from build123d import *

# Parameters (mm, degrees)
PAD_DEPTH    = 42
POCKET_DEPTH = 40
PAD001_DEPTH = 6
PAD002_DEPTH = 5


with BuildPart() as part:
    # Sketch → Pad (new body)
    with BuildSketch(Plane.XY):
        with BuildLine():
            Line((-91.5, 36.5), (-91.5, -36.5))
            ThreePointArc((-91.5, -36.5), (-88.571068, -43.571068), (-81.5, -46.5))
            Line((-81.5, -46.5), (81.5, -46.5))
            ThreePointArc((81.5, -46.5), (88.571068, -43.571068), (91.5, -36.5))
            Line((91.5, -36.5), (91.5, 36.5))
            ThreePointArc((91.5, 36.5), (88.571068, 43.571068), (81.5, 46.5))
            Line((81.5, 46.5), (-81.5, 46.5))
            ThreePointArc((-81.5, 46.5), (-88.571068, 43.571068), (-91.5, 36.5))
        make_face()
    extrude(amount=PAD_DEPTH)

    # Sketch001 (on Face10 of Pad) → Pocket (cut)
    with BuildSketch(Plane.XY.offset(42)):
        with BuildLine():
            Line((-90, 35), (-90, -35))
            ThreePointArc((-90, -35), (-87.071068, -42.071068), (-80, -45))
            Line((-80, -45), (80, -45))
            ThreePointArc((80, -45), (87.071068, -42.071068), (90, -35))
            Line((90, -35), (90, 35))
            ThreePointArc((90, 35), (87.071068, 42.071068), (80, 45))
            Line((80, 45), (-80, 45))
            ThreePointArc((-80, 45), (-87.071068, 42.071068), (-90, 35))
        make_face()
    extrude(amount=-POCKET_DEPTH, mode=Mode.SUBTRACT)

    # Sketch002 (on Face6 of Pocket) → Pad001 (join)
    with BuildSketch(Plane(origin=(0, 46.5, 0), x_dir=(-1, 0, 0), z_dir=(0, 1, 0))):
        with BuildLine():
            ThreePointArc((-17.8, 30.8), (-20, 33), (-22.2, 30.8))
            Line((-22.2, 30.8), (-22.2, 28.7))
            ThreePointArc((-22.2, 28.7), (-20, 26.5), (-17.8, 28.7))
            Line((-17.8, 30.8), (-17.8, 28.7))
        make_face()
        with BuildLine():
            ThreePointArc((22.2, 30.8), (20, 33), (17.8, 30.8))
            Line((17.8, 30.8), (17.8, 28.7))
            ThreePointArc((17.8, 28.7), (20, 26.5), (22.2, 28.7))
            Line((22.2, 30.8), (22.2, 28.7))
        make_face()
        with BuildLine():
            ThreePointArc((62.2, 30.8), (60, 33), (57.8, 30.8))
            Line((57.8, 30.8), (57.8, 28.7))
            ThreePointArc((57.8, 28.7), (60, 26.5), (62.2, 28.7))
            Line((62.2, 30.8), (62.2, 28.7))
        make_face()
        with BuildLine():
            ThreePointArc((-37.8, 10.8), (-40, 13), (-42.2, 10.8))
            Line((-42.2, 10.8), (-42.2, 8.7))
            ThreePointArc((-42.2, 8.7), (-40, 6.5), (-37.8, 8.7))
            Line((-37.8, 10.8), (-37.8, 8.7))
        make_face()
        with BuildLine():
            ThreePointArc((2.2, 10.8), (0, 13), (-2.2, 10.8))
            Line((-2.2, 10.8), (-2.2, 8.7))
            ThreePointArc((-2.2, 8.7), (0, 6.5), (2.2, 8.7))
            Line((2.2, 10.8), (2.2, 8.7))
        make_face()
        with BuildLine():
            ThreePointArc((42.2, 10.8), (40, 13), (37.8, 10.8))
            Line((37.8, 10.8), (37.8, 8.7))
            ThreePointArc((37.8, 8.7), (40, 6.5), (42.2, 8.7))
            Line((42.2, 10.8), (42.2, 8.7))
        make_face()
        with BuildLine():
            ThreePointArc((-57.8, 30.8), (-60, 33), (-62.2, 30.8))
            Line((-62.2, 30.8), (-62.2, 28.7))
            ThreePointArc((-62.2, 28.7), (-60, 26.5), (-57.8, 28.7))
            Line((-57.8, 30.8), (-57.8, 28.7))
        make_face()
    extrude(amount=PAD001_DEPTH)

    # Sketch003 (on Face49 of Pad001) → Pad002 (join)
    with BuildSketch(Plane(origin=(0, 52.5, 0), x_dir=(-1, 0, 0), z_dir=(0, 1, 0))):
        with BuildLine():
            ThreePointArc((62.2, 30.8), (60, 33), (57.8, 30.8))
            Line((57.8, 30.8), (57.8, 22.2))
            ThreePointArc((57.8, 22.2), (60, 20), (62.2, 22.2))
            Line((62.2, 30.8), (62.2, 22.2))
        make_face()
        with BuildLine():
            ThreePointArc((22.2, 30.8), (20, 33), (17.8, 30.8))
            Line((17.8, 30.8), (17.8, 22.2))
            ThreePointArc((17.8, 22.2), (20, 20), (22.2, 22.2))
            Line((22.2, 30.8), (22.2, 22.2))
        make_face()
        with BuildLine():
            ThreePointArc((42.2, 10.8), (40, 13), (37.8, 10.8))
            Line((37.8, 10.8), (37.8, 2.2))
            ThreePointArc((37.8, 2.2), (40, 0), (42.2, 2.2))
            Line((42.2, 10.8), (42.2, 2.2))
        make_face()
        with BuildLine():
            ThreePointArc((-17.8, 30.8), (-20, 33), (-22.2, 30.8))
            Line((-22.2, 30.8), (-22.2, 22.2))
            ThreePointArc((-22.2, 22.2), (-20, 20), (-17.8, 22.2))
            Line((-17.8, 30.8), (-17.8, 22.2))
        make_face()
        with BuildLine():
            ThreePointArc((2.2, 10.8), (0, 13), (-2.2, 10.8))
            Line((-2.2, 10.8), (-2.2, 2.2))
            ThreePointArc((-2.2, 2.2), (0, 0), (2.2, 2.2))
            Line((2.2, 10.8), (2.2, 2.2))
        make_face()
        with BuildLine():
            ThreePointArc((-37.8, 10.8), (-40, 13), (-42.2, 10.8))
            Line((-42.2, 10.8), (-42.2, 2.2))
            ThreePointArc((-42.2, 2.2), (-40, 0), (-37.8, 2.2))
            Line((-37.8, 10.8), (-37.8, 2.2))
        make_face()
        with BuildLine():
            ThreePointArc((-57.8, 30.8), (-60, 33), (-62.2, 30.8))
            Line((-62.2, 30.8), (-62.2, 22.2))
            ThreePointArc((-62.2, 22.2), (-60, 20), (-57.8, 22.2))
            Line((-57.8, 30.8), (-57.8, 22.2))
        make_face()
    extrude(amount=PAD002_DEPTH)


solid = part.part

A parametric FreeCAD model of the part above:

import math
import FreeCAD as App
import Part
import Sketcher

V = App.Vector

doc = App.newDocument("Part")
body = doc.addObject("PartDesign::Body", "Body")

sketch1 = doc.addObject("Sketcher::SketchObject", "Sketch")
body.addObject(sketch1)
sketch1.AttachmentSupport = (doc.XY_Plane, [""])
sketch1.MapMode = "FlatFace"
sketch1.addGeometry(Part.LineSegment(V(-92, 36, 0), V(-92, -36, 0)), False)
sketch1.addGeometry(Part.ArcOfCircle(Part.Circle(V(-82, -37, 0), V(0, 0, 1), 10), math.radians(180), math.radians(270)), False)
sketch1.addGeometry(Part.LineSegment(V(-82, -46, 0), V(82, -46, 0)), False)
sketch1.addGeometry(Part.ArcOfCircle(Part.Circle(V(82, -37, 0), V(0, 0, 1), 10), math.radians(-90), math.radians(0)), False)
sketch1.addGeometry(Part.LineSegment(V(92, -36, 0), V(92, 36, 0)), False)
sketch1.addGeometry(Part.ArcOfCircle(Part.Circle(V(82, 37, 0), V(0, 0, 1), 10), math.radians(0), math.radians(90)), False)
sketch1.addGeometry(Part.LineSegment(V(82, 46, 0), V(-82, 46, 0)), False)
sketch1.addGeometry(Part.ArcOfCircle(Part.Circle(V(-82, 37, 0), V(0, 0, 1), 10), math.radians(90), math.radians(180)), False)
sketch1.addConstraint(Sketcher.Constraint("Tangent", 0, 2, 1, 1))
sketch1.addConstraint(Sketcher.Constraint("Tangent", 1, 2, 2, 1))
sketch1.addConstraint(Sketcher.Constraint("Tangent", 2, 2, 3, 1))
sketch1.addConstraint(Sketcher.Constraint("Tangent", 3, 2, 4, 1))
sketch1.addConstraint(Sketcher.Constraint("Tangent", 4, 2, 5, 1))
sketch1.addConstraint(Sketcher.Constraint("Tangent", 5, 2, 6, 1))
sketch1.addConstraint(Sketcher.Constraint("Tangent", 6, 2, 7, 1))
sketch1.addConstraint(Sketcher.Constraint("Tangent", 7, 2, 0, 1))
sketch1.addConstraint(Sketcher.Constraint("Vertical", 0))
sketch1.addConstraint(Sketcher.Constraint("Horizontal", 2))
sketch1.addConstraint(Sketcher.Constraint("Vertical", 4))
sketch1.addConstraint(Sketcher.Constraint("Horizontal", 6))
sketch1.addConstraint(Sketcher.Constraint("Equal", 1, 3))
sketch1.addConstraint(Sketcher.Constraint("Equal", 3, 5))
sketch1.addConstraint(Sketcher.Constraint("Equal", 5, 7))
sketch1.addConstraint(Sketcher.Constraint("Symmetric", 1, 3, 5, 3, -1, 1))
sketch1.addConstraint(Sketcher.Constraint("Radius", 1, 9.999999))
sketch1.addConstraint(Sketcher.Constraint("DistanceX", 2, 1, 2, 2, 163.0))
sketch1.addConstraint(Sketcher.Constraint("DistanceY", 0, 2, 0, 1, 73.0))
pad1 = doc.addObject("PartDesign::Pad", "Pad")
body.addObject(pad1)
pad1.Profile = sketch1
pad1.Length = 42

sketch2 = doc.addObject("Sketcher::SketchObject", "Sketch001")
body.addObject(sketch2)
sketch2.AttachmentSupport = (doc.XY_Plane, [""])
sketch2.MapMode = "FlatFace"
sketch2.AttachmentOffset = App.Placement(V(0, 0, 42), App.Rotation())
sketch2.addGeometry(Part.LineSegment(V(-90, 35, 0), V(-90, -35, 0)), False)
sketch2.addGeometry(Part.ArcOfCircle(Part.Circle(V(-80, -35, 0), V(0, 0, 1), 10), math.radians(180), math.radians(270)), False)
sketch2.addGeometry(Part.LineSegment(V(-80, -45, 0), V(80, -45, 0)), False)
sketch2.addGeometry(Part.ArcOfCircle(Part.Circle(V(80, -35, 0), V(0, 0, 1), 10), math.radians(-90), math.radians(0)), False)
sketch2.addGeometry(Part.LineSegment(V(90, -35, 0), V(90, 35, 0)), False)
sketch2.addGeometry(Part.ArcOfCircle(Part.Circle(V(80, 35, 0), V(0, 0, 1), 10), math.radians(0), math.radians(90)), False)
sketch2.addGeometry(Part.LineSegment(V(80, 45, 0), V(-80, 45, 0)), False)
sketch2.addGeometry(Part.ArcOfCircle(Part.Circle(V(-80, 35, 0), V(0, 0, 1), 10), math.radians(90), math.radians(180)), False)
sketch2.addConstraint(Sketcher.Constraint("Tangent", 0, 2, 1, 1))
sketch2.addConstraint(Sketcher.Constraint("Tangent", 1, 2, 2, 1))
sketch2.addConstraint(Sketcher.Constraint("Tangent", 2, 2, 3, 1))
sketch2.addConstraint(Sketcher.Constraint("Tangent", 3, 2, 4, 1))
sketch2.addConstraint(Sketcher.Constraint("Tangent", 4, 2, 5, 1))
sketch2.addConstraint(Sketcher.Constraint("Tangent", 5, 2, 6, 1))
sketch2.addConstraint(Sketcher.Constraint("Tangent", 6, 2, 7, 1))
sketch2.addConstraint(Sketcher.Constraint("Tangent", 7, 2, 0, 1))
sketch2.addConstraint(Sketcher.Constraint("Vertical", 0))
sketch2.addConstraint(Sketcher.Constraint("Horizontal", 2))
sketch2.addConstraint(Sketcher.Constraint("Vertical", 4))
sketch2.addConstraint(Sketcher.Constraint("Horizontal", 6))
sketch2.addConstraint(Sketcher.Constraint("Equal", 1, 3))
sketch2.addConstraint(Sketcher.Constraint("Equal", 3, 5))
sketch2.addConstraint(Sketcher.Constraint("Equal", 5, 7))
sketch2.addConstraint(Sketcher.Constraint("Symmetric", 1, 3, 5, 3, -1, 1))
sketch2.addConstraint(Sketcher.Constraint("Radius", 1, 9.999999))
sketch2.addConstraint(Sketcher.Constraint("DistanceX", 2, 1, 2, 2, 160.0))
sketch2.addConstraint(Sketcher.Constraint("DistanceY", 0, 2, 0, 1, 70.0))
pocket1 = doc.addObject("PartDesign::Pocket", "Pocket")
body.addObject(pocket1)
pocket1.Profile = sketch2
pocket1.Length = 40

sketch3 = doc.addObject("Sketcher::SketchObject", "Sketch002")
body.addObject(sketch3)
sketch3.AttachmentSupport = (doc.XZ_Plane, [""])
sketch3.MapMode = "FlatFace"
sketch3.AttachmentOffset = App.Placement(V(0, 0, -46.5), App.Rotation())
sketch3.addGeometry(Part.ArcOfCircle(Part.Circle(V(20, 30.8, 0), V(0, 0, 1), 2.2), math.radians(0), math.radians(180)), False)
sketch3.addGeometry(Part.LineSegment(V(22.2, 30.8, 0), V(22.2, 28.7, 0)), False)
sketch3.addGeometry(Part.ArcOfCircle(Part.Circle(V(20, 28.7, 0), V(0, 0, 1), 2.2), math.radians(180), math.radians(360)), False)
sketch3.addGeometry(Part.LineSegment(V(17.8, 28.7, 0), V(17.8, 30.8, 0)), False)
sketch3.addGeometry(Part.ArcOfCircle(Part.Circle(V(-20, 30.8, 0), V(0, 0, 1), 2.2), math.radians(0), math.radians(180)), False)
sketch3.addGeometry(Part.LineSegment(V(-17.8, 30.8, 0), V(-17.8, 28.7, 0)), False)
sketch3.addGeometry(Part.ArcOfCircle(Part.Circle(V(-20, 28.7, 0), V(0, 0, 1), 2.2), math.radians(180), math.radians(360)), False)
sketch3.addGeometry(Part.LineSegment(V(-22.2, 28.7, 0), V(-22.2, 30.8, 0)), False)
sketch3.addGeometry(Part.ArcOfCircle(Part.Circle(V(-60, 30.8, 0), V(0, 0, 1), 2.2), math.radians(0), math.radians(180)), False)
sketch3.addGeometry(Part.LineSegment(V(-57.8, 30.8, 0), V(-57.8, 28.7, 0)), False)
sketch3.addGeometry(Part.ArcOfCircle(Part.Circle(V(-60, 28.7, 0), V(0, 0, 1), 2.2), math.radians(180), math.radians(360)), False)
sketch3.addGeometry(Part.LineSegment(V(-62.2, 28.7, 0), V(-62.2, 30.8, 0)), False)
sketch3.addGeometry(Part.ArcOfCircle(Part.Circle(V(40, 10.8, 0), V(0, 0, 1), 2.2), math.radians(0), math.radians(180)), False)
sketch3.addGeometry(Part.LineSegment(V(42.2, 10.8, 0), V(42.2, 8.7, 0)), False)
sketch3.addGeometry(Part.ArcOfCircle(Part.Circle(V(40, 8.7, 0), V(0, 0, 1), 2.2), math.radians(180), math.radians(360)), False)
sketch3.addGeometry(Part.LineSegment(V(37.8, 8.7, 0), V(37.8, 10.8, 0)), False)
sketch3.addGeometry(Part.ArcOfCircle(Part.Circle(V(0, 10.8, 0), V(0, 0, 1), 2.2), math.radians(0), math.radians(180)), False)
sketch3.addGeometry(Part.LineSegment(V(2.2, 10.8, 0), V(2.2, 8.7, 0)), False)
sketch3.addGeometry(Part.ArcOfCircle(Part.Circle(V(0, 8.7, 0), V(0, 0, 1), 2.2), math.radians(180), math.radians(360)), False)
sketch3.addGeometry(Part.LineSegment(V(-2.2, 8.7, 0), V(-2.2, 10.8, 0)), False)
sketch3.addGeometry(Part.ArcOfCircle(Part.Circle(V(-40, 10.8, 0), V(0, 0, 1), 2.2), math.radians(0), math.radians(180)), False)
sketch3.addGeometry(Part.LineSegment(V(-37.8, 10.8, 0), V(-37.8, 8.7, 0)), False)
sketch3.addGeometry(Part.ArcOfCircle(Part.Circle(V(-40, 8.7, 0), V(0, 0, 1), 2.2), math.radians(180), math.radians(360)), False)
sketch3.addGeometry(Part.LineSegment(V(-42.2, 8.7, 0), V(-42.2, 10.8, 0)), False)
sketch3.addGeometry(Part.ArcOfCircle(Part.Circle(V(60, 30.8, 0), V(0, 0, 1), 2.2), math.radians(0), math.radians(180)), False)
sketch3.addGeometry(Part.LineSegment(V(62.2, 30.8, 0), V(62.2, 28.7, 0)), False)
sketch3.addGeometry(Part.ArcOfCircle(Part.Circle(V(60, 28.7, 0), V(0, 0, 1), 2.2), math.radians(180), math.radians(360)), False)
sketch3.addGeometry(Part.LineSegment(V(57.8, 28.7, 0), V(57.8, 30.8, 0)), False)
sketch3.addConstraint(Sketcher.Constraint("Tangent", 0, 1, 1, 1))
sketch3.addConstraint(Sketcher.Constraint("Tangent", 1, 2, 2, 2))
sketch3.addConstraint(Sketcher.Constraint("Tangent", 2, 1, 3, 1))
sketch3.addConstraint(Sketcher.Constraint("Tangent", 3, 2, 0, 2))
sketch3.addConstraint(Sketcher.Constraint("Tangent", 4, 1, 5, 1))
sketch3.addConstraint(Sketcher.Constraint("Tangent", 5, 2, 6, 2))
sketch3.addConstraint(Sketcher.Constraint("Tangent", 6, 1, 7, 1))
sketch3.addConstraint(Sketcher.Constraint("Tangent", 7, 2, 4, 2))
sketch3.addConstraint(Sketcher.Constraint("Tangent", 8, 1, 9, 1))
sketch3.addConstraint(Sketcher.Constraint("Tangent", 9, 2, 10, 2))
sketch3.addConstraint(Sketcher.Constraint("Tangent", 10, 1, 11, 1))
sketch3.addConstraint(Sketcher.Constraint("Tangent", 11, 2, 8, 2))
sketch3.addConstraint(Sketcher.Constraint("Tangent", 12, 1, 13, 1))
sketch3.addConstraint(Sketcher.Constraint("Tangent", 13, 2, 14, 2))
sketch3.addConstraint(Sketcher.Constraint("Tangent", 14, 1, 15, 1))
sketch3.addConstraint(Sketcher.Constraint("Tangent", 15, 2, 12, 2))
sketch3.addConstraint(Sketcher.Constraint("Tangent", 16, 1, 17, 1))
sketch3.addConstraint(Sketcher.Constraint("Tangent", 17, 2, 18, 2))
sketch3.addConstraint(Sketcher.Constraint("Tangent", 18, 1, 19, 1))
sketch3.addConstraint(Sketcher.Constraint("Tangent", 19, 2, 16, 2))
sketch3.addConstraint(Sketcher.Constraint("Tangent", 20, 1, 21, 1))
sketch3.addConstraint(Sketcher.Constraint("Tangent", 21, 2, 22, 2))
sketch3.addConstraint(Sketcher.Constraint("Tangent", 22, 1, 23, 1))
sketch3.addConstraint(Sketcher.Constraint("Tangent", 23, 2, 20, 2))
sketch3.addConstraint(Sketcher.Constraint("Tangent", 24, 1, 25, 1))
sketch3.addConstraint(Sketcher.Constraint("Tangent", 25, 2, 26, 2))
sketch3.addConstraint(Sketcher.Constraint("Tangent", 26, 1, 27, 1))
sketch3.addConstraint(Sketcher.Constraint("Tangent", 27, 2, 24, 2))
sketch3.addConstraint(Sketcher.Constraint("Vertical", 1))
sketch3.addConstraint(Sketcher.Constraint("Vertical", 3))
sketch3.addConstraint(Sketcher.Constraint("Vertical", 5))
sketch3.addConstraint(Sketcher.Constraint("Vertical", 7))
sketch3.addConstraint(Sketcher.Constraint("Vertical", 9))
sketch3.addConstraint(Sketcher.Constraint("Vertical", 11))
sketch3.addConstraint(Sketcher.Constraint("Vertical", 13))
sketch3.addConstraint(Sketcher.Constraint("Vertical", 15))
sketch3.addConstraint(Sketcher.Constraint("Vertical", 17))
sketch3.addConstraint(Sketcher.Constraint("Vertical", 19))
sketch3.addConstraint(Sketcher.Constraint("Vertical", 21))
sketch3.addConstraint(Sketcher.Constraint("Vertical", 23))
sketch3.addConstraint(Sketcher.Constraint("Vertical", 25))
sketch3.addConstraint(Sketcher.Constraint("Vertical", 27))
sketch3.addConstraint(Sketcher.Constraint("Equal", 2, 4))
sketch3.addConstraint(Sketcher.Constraint("Equal", 6, 8))
sketch3.addConstraint(Sketcher.Constraint("Equal", 10, 12))
sketch3.addConstraint(Sketcher.Constraint("Equal", 14, 16))
sketch3.addConstraint(Sketcher.Constraint("Equal", 18, 20))
sketch3.addConstraint(Sketcher.Constraint("Equal", 22, 24))
sketch3.addConstraint(Sketcher.Constraint("Symmetric", 0, 3, 4, 3, -2))
sketch3.addConstraint(Sketcher.Constraint("Symmetric", 12, 3, 20, 3, -2))
sketch3.addConstraint(Sketcher.Constraint("Symmetric", 8, 3, 24, 3, -2))
sketch3.addConstraint(Sketcher.Constraint("PointOnObject", 16, 3, -2))
sketch3.addConstraint(Sketcher.Constraint("Horizontal", 2, 3, 6, 3))
sketch3.addConstraint(Sketcher.Constraint("Horizontal", 4, 3, 8, 3))
sketch3.addConstraint(Sketcher.Constraint("Horizontal", 6, 3, 10, 3))
sketch3.addConstraint(Sketcher.Constraint("Horizontal", 12, 3, 16, 3))
sketch3.addConstraint(Sketcher.Constraint("Horizontal", 14, 3, 18, 3))
sketch3.addConstraint(Sketcher.Constraint("Horizontal", 18, 3, 22, 3))
sketch3.addConstraint(Sketcher.Constraint("Horizontal", 10, 3, 26, 3))
sketch3.addConstraint(Sketcher.Constraint("Equal", 11, 13))
sketch3.addConstraint(Sketcher.Constraint("Radius", 0, 2.2))
sketch3.addConstraint(Sketcher.Constraint("DistanceY", 1, 2, 1, 1, 2.1))
sketch3.addConstraint(Sketcher.Constraint("DistanceX", -1, 1, 0, 3, 20.0))
sketch3.addConstraint(Sketcher.Constraint("DistanceX", 8, 3, -1, 1, 60.0))
sketch3.addConstraint(Sketcher.Constraint("DistanceX", -1, 1, 12, 3, 40.0))
sketch3.addConstraint(Sketcher.Constraint("DistanceY", 12, 3, 0, 3, 20.0))
sketch3.addConstraint(Sketcher.Constraint("DistanceY", -1, 1, 0, 3, 30.8))
pad2 = doc.addObject("PartDesign::Pad", "Pad001")
body.addObject(pad2)
pad2.Profile = sketch3
pad2.Length = 6
pad2.Reversed = True

sketch4 = doc.addObject("Sketcher::SketchObject", "Sketch003")
body.addObject(sketch4)
sketch4.AttachmentSupport = (doc.XZ_Plane, [""])
sketch4.MapMode = "FlatFace"
sketch4.AttachmentOffset = App.Placement(V(0, 0, -52.5), App.Rotation())
sketch4.addGeometry(Part.ArcOfCircle(Part.Circle(V(-60, 30.8, 0), V(0, 0, 1), 2.2), math.radians(0), math.radians(180)), False)
sketch4.addGeometry(Part.LineSegment(V(-57.8, 30.8, 0), V(-57.8, 22.2, 0)), False)
sketch4.addGeometry(Part.ArcOfCircle(Part.Circle(V(-60, 22.2, 0), V(0, 0, 1), 2.2), math.radians(180), math.radians(360)), False)
sketch4.addGeometry(Part.LineSegment(V(-62.2, 22.2, 0), V(-62.2, 30.8, 0)), False)
sketch4.addGeometry(Part.ArcOfCircle(Part.Circle(V(-20, 30.8, 0), V(0, 0, 1), 2.2), math.radians(0), math.radians(180)), False)
sketch4.addGeometry(Part.LineSegment(V(-17.8, 30.8, 0), V(-17.8, 22.2, 0)), False)
sketch4.addGeometry(Part.ArcOfCircle(Part.Circle(V(-20, 22.2, 0), V(0, 0, 1), 2.2), math.radians(180), math.radians(360)), False)
sketch4.addGeometry(Part.LineSegment(V(-22.2, 22.2, 0), V(-22.2, 30.8, 0)), False)
sketch4.addGeometry(Part.ArcOfCircle(Part.Circle(V(-40, 10.8, 0), V(0, 0, 1), 2.2), math.radians(0), math.radians(180)), False)
sketch4.addGeometry(Part.LineSegment(V(-37.8, 10.8, 0), V(-37.8, 2.2, 0)), False)
sketch4.addGeometry(Part.ArcOfCircle(Part.Circle(V(-40, 2.2, 0), V(0, 0, 1), 2.2), math.radians(180), math.radians(360)), False)
sketch4.addGeometry(Part.LineSegment(V(-42.2, 2.2, 0), V(-42.2, 10.8, 0)), False)
sketch4.addGeometry(Part.ArcOfCircle(Part.Circle(V(20, 30.8, 0), V(0, 0, 1), 2.2), math.radians(0), math.radians(180)), False)
sketch4.addGeometry(Part.LineSegment(V(22.2, 30.8, 0), V(22.2, 22.2, 0)), False)
sketch4.addGeometry(Part.ArcOfCircle(Part.Circle(V(20, 22.2, 0), V(0, 0, 1), 2.2), math.radians(180), math.radians(360)), False)
sketch4.addGeometry(Part.LineSegment(V(17.8, 22.2, 0), V(17.8, 30.8, 0)), False)
sketch4.addGeometry(Part.ArcOfCircle(Part.Circle(V(0, 10.8, 0), V(0, 0, 1), 2.2), math.radians(0), math.radians(180)), False)
sketch4.addGeometry(Part.LineSegment(V(2.2, 10.8, 0), V(2.2, 2.2, 0)), False)
sketch4.addGeometry(Part.ArcOfCircle(Part.Circle(V(0, 2.2, 0), V(0, 0, 1), 2.2), math.radians(180), math.radians(360)), False)
sketch4.addGeometry(Part.LineSegment(V(-2.2, 2.2, 0), V(-2.2, 10.8, 0)), False)
sketch4.addGeometry(Part.ArcOfCircle(Part.Circle(V(40, 10.8, 0), V(0, 0, 1), 2.2), math.radians(0), math.radians(180)), False)
sketch4.addGeometry(Part.LineSegment(V(42.2, 10.8, 0), V(42.2, 2.2, 0)), False)
sketch4.addGeometry(Part.ArcOfCircle(Part.Circle(V(40, 2.2, 0), V(0, 0, 1), 2.2), math.radians(180), math.radians(360)), False)
sketch4.addGeometry(Part.LineSegment(V(37.8, 2.2, 0), V(37.8, 10.8, 0)), False)
sketch4.addGeometry(Part.ArcOfCircle(Part.Circle(V(60, 30.8, 0), V(0, 0, 1), 2.2), math.radians(0), math.radians(180)), False)
sketch4.addGeometry(Part.LineSegment(V(62.2, 30.8, 0), V(62.2, 22.2, 0)), False)
sketch4.addGeometry(Part.ArcOfCircle(Part.Circle(V(60, 22.2, 0), V(0, 0, 1), 2.2), math.radians(180), math.radians(360)), False)
sketch4.addGeometry(Part.LineSegment(V(57.8, 22.2, 0), V(57.8, 30.8, 0)), False)
sketch4.addConstraint(Sketcher.Constraint("Tangent", 0, 1, 1, 1))
sketch4.addConstraint(Sketcher.Constraint("Tangent", 1, 2, 2, 2))
sketch4.addConstraint(Sketcher.Constraint("Tangent", 2, 1, 3, 1))
sketch4.addConstraint(Sketcher.Constraint("Tangent", 3, 2, 0, 2))
sketch4.addConstraint(Sketcher.Constraint("Tangent", 4, 1, 5, 1))
sketch4.addConstraint(Sketcher.Constraint("Tangent", 5, 2, 6, 2))
sketch4.addConstraint(Sketcher.Constraint("Tangent", 6, 1, 7, 1))
sketch4.addConstraint(Sketcher.Constraint("Tangent", 7, 2, 4, 2))
sketch4.addConstraint(Sketcher.Constraint("Tangent", 8, 1, 9, 1))
sketch4.addConstraint(Sketcher.Constraint("Tangent", 9, 2, 10, 2))
sketch4.addConstraint(Sketcher.Constraint("Tangent", 10, 1, 11, 1))
sketch4.addConstraint(Sketcher.Constraint("Tangent", 11, 2, 8, 2))
sketch4.addConstraint(Sketcher.Constraint("Tangent", 12, 1, 13, 1))
sketch4.addConstraint(Sketcher.Constraint("Tangent", 13, 2, 14, 2))
sketch4.addConstraint(Sketcher.Constraint("Tangent", 14, 1, 15, 1))
sketch4.addConstraint(Sketcher.Constraint("Tangent", 15, 2, 12, 2))
sketch4.addConstraint(Sketcher.Constraint("Tangent", 16, 1, 17, 1))
sketch4.addConstraint(Sketcher.Constraint("Tangent", 17, 2, 18, 2))
sketch4.addConstraint(Sketcher.Constraint("Tangent", 18, 1, 19, 1))
sketch4.addConstraint(Sketcher.Constraint("Tangent", 19, 2, 16, 2))
sketch4.addConstraint(Sketcher.Constraint("Tangent", 20, 1, 21, 1))
sketch4.addConstraint(Sketcher.Constraint("Tangent", 21, 2, 22, 2))
sketch4.addConstraint(Sketcher.Constraint("Tangent", 22, 1, 23, 1))
sketch4.addConstraint(Sketcher.Constraint("Tangent", 23, 2, 20, 2))
sketch4.addConstraint(Sketcher.Constraint("Tangent", 24, 1, 25, 1))
sketch4.addConstraint(Sketcher.Constraint("Tangent", 25, 2, 26, 2))
sketch4.addConstraint(Sketcher.Constraint("Tangent", 26, 1, 27, 1))
sketch4.addConstraint(Sketcher.Constraint("Tangent", 27, 2, 24, 2))
sketch4.addConstraint(Sketcher.Constraint("Vertical", 1))
sketch4.addConstraint(Sketcher.Constraint("Vertical", 3))
sketch4.addConstraint(Sketcher.Constraint("Vertical", 5))
sketch4.addConstraint(Sketcher.Constraint("Vertical", 7))
sketch4.addConstraint(Sketcher.Constraint("Vertical", 9))
sketch4.addConstraint(Sketcher.Constraint("Vertical", 11))
sketch4.addConstraint(Sketcher.Constraint("Vertical", 13))
sketch4.addConstraint(Sketcher.Constraint("Vertical", 15))
sketch4.addConstraint(Sketcher.Constraint("Vertical", 17))
sketch4.addConstraint(Sketcher.Constraint("Vertical", 19))
sketch4.addConstraint(Sketcher.Constraint("Vertical", 21))
sketch4.addConstraint(Sketcher.Constraint("Vertical", 23))
sketch4.addConstraint(Sketcher.Constraint("Vertical", 25))
sketch4.addConstraint(Sketcher.Constraint("Vertical", 27))
sketch4.addConstraint(Sketcher.Constraint("Equal", 2, 4))
sketch4.addConstraint(Sketcher.Constraint("Equal", 6, 8))
sketch4.addConstraint(Sketcher.Constraint("Equal", 10, 12))
sketch4.addConstraint(Sketcher.Constraint("Equal", 14, 16))
sketch4.addConstraint(Sketcher.Constraint("Equal", 18, 20))
sketch4.addConstraint(Sketcher.Constraint("Equal", 22, 24))
sketch4.addConstraint(Sketcher.Constraint("Symmetric", 4, 3, 12, 3, -2))
sketch4.addConstraint(Sketcher.Constraint("Symmetric", 8, 3, 20, 3, -2))
sketch4.addConstraint(Sketcher.Constraint("Symmetric", 0, 3, 24, 3, -2))
sketch4.addConstraint(Sketcher.Constraint("PointOnObject", 16, 3, -2))
sketch4.addConstraint(Sketcher.Constraint("Horizontal", 0, 3, 4, 3))
sketch4.addConstraint(Sketcher.Constraint("Horizontal", 2, 3, 6, 3))
sketch4.addConstraint(Sketcher.Constraint("Horizontal", 6, 3, 14, 3))
sketch4.addConstraint(Sketcher.Constraint("Horizontal", 8, 3, 16, 3))
sketch4.addConstraint(Sketcher.Constraint("Horizontal", 10, 3, 18, 3))
sketch4.addConstraint(Sketcher.Constraint("Horizontal", 18, 3, 22, 3))
sketch4.addConstraint(Sketcher.Constraint("Horizontal", 14, 3, 26, 3))
sketch4.addConstraint(Sketcher.Constraint("Equal", 7, 9))
sketch4.addConstraint(Sketcher.Constraint("Radius", 0, 2.2))
sketch4.addConstraint(Sketcher.Constraint("DistanceY", 1, 2, 1, 1, 8.6))
sketch4.addConstraint(Sketcher.Constraint("DistanceX", 0, 3, -1, 1, 60.0))
sketch4.addConstraint(Sketcher.Constraint("DistanceX", 4, 3, -1, 1, 20.0))
sketch4.addConstraint(Sketcher.Constraint("DistanceX", 8, 3, -1, 1, 40.0))
sketch4.addConstraint(Sketcher.Constraint("DistanceY", 8, 3, 0, 3, 20.0))
sketch4.addConstraint(Sketcher.Constraint("DistanceY", -1, 1, 0, 3, 30.8))
pad3 = doc.addObject("PartDesign::Pad", "Pad002")
body.addObject(pad3)
pad3.Profile = sketch4
pad3.Length = 5
pad3.Reversed = True

doc.recompute()
